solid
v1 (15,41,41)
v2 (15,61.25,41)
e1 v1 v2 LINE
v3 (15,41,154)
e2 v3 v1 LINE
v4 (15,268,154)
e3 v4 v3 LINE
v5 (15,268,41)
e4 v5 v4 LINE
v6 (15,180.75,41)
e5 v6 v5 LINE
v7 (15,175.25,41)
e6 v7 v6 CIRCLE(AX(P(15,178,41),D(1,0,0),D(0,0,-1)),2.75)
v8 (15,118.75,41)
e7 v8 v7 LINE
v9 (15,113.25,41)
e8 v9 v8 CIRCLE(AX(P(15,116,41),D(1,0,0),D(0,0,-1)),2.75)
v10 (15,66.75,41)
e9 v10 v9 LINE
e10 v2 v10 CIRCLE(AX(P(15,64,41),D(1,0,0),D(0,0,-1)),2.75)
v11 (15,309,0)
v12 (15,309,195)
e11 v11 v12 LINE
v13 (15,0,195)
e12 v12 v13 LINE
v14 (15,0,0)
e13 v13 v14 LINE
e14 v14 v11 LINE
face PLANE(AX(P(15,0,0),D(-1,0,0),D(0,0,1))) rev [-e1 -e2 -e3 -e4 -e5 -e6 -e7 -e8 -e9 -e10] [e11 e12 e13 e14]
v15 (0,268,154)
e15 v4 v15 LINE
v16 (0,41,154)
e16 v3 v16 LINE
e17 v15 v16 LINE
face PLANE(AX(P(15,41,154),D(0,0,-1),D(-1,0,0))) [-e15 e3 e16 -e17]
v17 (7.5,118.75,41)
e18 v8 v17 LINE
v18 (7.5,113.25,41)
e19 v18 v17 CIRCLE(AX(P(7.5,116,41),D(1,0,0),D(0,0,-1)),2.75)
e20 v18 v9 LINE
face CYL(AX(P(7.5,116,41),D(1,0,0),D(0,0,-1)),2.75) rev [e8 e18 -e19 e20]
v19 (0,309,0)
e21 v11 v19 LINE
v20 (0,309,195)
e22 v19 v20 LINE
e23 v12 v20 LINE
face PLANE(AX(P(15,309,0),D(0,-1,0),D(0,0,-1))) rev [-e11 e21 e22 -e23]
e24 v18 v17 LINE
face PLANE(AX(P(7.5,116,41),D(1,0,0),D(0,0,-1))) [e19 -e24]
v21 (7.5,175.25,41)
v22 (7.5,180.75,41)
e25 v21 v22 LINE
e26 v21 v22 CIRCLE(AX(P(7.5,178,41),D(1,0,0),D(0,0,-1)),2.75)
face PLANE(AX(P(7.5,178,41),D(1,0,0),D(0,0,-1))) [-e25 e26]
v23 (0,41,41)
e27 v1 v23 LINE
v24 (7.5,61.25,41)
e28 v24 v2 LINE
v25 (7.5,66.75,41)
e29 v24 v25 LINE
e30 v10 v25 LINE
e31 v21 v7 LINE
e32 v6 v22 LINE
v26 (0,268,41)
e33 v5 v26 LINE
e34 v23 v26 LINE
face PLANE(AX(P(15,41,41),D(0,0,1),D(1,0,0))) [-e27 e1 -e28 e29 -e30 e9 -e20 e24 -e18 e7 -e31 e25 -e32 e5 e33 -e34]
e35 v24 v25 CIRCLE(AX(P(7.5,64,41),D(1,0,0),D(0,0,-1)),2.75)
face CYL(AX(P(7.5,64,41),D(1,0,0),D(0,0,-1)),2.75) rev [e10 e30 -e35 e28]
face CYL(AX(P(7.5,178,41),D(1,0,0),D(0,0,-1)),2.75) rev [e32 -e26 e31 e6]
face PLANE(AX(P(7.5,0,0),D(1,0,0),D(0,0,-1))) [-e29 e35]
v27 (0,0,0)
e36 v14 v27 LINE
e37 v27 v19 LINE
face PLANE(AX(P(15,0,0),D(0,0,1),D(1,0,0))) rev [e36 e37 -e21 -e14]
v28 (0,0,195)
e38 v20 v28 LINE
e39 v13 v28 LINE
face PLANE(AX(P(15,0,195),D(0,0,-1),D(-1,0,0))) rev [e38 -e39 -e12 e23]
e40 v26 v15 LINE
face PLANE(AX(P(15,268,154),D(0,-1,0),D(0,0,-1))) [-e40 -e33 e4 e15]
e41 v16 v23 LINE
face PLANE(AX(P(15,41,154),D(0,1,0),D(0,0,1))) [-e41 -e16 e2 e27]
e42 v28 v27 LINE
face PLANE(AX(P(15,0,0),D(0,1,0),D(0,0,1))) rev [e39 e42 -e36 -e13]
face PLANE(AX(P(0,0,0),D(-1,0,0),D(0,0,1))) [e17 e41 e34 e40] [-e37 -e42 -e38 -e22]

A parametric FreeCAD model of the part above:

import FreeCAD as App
import Part
import Sketcher


def add_polygon(sketch, points):
    """Adds a closed chain of lines whose ends are joined by coincident constraints."""
    first, n = sketch.GeometryCount, len(points)
    for a, b in zip(points, points[1:] + points[:1]):
        sketch.addGeometry(Part.LineSegment(App.Vector(*a, 0), App.Vector(*b, 0)), False)
    for i in range(n):
        sketch.addConstraint(Sketcher.Constraint("Coincident", first + i, 2, first + (i + 1) % n, 1))

doc = App.newDocument("Part")
body = doc.addObject("PartDesign::Body", "Body")

# Sketch on YZ plane
sketch1 = body.newObject("Sketcher::SketchObject", "Sketch")
sketch1.AttachmentSupport = (doc.getObject("YZ_Plane"), [""])
sketch1.MapMode = "FlatFace"
add_polygon(sketch1, [(0, 195), (0, 0), (309, 0), (309, 195)])  # lines 0-3
add_polygon(sketch1, [(268, 41), (41, 41), (41, 154), (268, 154)])  # lines 4-7
sketch1.addConstraint([
    Sketcher.Constraint("Vertical", 0),
    Sketcher.Constraint("Horizontal", 1),
    Sketcher.Constraint("Vertical", 2),
    Sketcher.Constraint("Horizontal", 3),
    Sketcher.Constraint("Horizontal", 4),
    Sketcher.Constraint("Vertical", 5),
    Sketcher.Constraint("Horizontal", 6),
    Sketcher.Constraint("Vertical", 7),
    Sketcher.Constraint("Coincident", 0, 2, -1, 1),
    Sketcher.Constraint("DistanceX", 1, 1, 1, 2, 309.0),
    Sketcher.Constraint("DistanceX", 4, 2, 4, 1, 227.0),
    Sketcher.Constraint("DistanceY", 0, 2, 0, 1, 195.0),
    Sketcher.Constraint("DistanceY", 5, 1, 5, 2, 113.0),
    Sketcher.Constraint("DistanceX", -1, 1, 4, 2, 41.0),
    Sketcher.Constraint("DistanceY", -1, 1, 4, 2, 41.0),
])
pad1 = body.newObject("PartDesign::Pad", "Pad")
pad1.Profile = sketch1
pad1.Length = 15

# Sketch on YZ plane
sketch2 = body.newObject("Sketcher::SketchObject", "Sketch001")
sketch2.AttachmentSupport = (doc.getObject("YZ_Plane"), [""])
sketch2.MapMode = "FlatFace"
sketch2.AttachmentOffset = App.Placement(App.Vector(0, 0, 15), App.Rotation())
sketch2.addGeometry([
    Part.Circle(App.Vector(64, 41, 0), App.Vector(0, 0, 1), 2.8),
    Part.Circle(App.Vector(116, 41, 0), App.Vector(0, 0, 1), 2.8),
    Part.Circle(App.Vector(178, 41, 0), App.Vector(0, 0, 1), 2.8),
], False)
sketch2.addConstraint([
    Sketcher.Constraint("Equal", 0, 1),
    Sketcher.Constraint("Equal", 1, 2),
    Sketcher.Constraint("Horizontal", 0, 3, 1, 3),
    Sketcher.Constraint("Horizontal", 1, 3, 2, 3),
    Sketcher.Constraint("Diameter", 0, 5.5),
    Sketcher.Constraint("DistanceX", -1, 1, 0, 3, 64.0),
    Sketcher.Constraint("DistanceY", -1, 1, 0, 3, 41.0),
    Sketcher.Constraint("DistanceX", -1, 1, 1, 3, 116.0),
    Sketcher.Constraint("DistanceX", -1, 1, 2, 3, 178.0),
])
pocket1 = body.newObject("PartDesign::Pocket", "Pocket")
pocket1.Profile = sketch2
pocket1.Length = 7.5

doc.recompute()
